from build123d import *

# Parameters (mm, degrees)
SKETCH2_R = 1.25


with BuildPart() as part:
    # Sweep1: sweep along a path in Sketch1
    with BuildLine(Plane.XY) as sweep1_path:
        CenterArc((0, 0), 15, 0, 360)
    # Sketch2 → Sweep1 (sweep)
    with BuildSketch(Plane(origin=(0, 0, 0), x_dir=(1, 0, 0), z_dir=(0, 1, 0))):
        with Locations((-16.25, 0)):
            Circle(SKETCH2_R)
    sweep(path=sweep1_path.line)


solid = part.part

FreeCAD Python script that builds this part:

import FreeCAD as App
import Part
import Sketcher

V = App.Vector

doc = App.newDocument("Part")
params = doc.addObject("Spreadsheet::Sheet", "Params")
for row, (alias, value) in enumerate([
    ("sketch1_diameter", "2.5 mm"),
    ("sketch2_diameter", "30 mm"),
], start=1):
    params.set(f"A{row}", alias)
    params.set(f"B{row}", "=" + value)
    params.setAlias(f"B{row}", alias)

body = doc.addObject("PartDesign::Body", "Body")

sketch1 = body.newObject("Sketcher::SketchObject", "Sketch")
sketch1.AttachmentSupport = (doc.getObject("XZ_Plane"), [""])
sketch1.MapMode = "FlatFace"
sketch1.addGeometry(Part.Circle(V(-16.2, 0, 0), V(0, 0, 1), 1.2), False)
sketch1.addConstraint([
    Sketcher.Constraint("PointOnObject", 0, 3, -1),
    Sketcher.Constraint("Diameter", 0, 2.5),
    Sketcher.Constraint("DistanceX", 0, 3, -1, 1, 16.25),
])
sketch1.setExpression("Constraints[1]", "Params.sketch1_diameter")

sketch2 = body.newObject("Sketcher::SketchObject", "Sketch001")
sketch2.AttachmentSupport = (doc.getObject("XY_Plane"), [""])
sketch2.MapMode = "FlatFace"
sketch2.addGeometry(Part.Circle(V(0, 0, 0), V(0, 0, 1), 15), False)
sketch2.addConstraint([
    Sketcher.Constraint("Coincident", 0, 3, -1, 1),
    Sketcher.Constraint("Diameter", 0, 30.0),
])
sketch2.setExpression("Constraints[1]", "Params.sketch2_diameter")
doc.recompute()

additivepipe = body.newObject("PartDesign::AdditivePipe", "AdditivePipe")
additivepipe.Profile = sketch1
additivepipe.Spine = (sketch2, ["Edge1"])

doc.recompute()
